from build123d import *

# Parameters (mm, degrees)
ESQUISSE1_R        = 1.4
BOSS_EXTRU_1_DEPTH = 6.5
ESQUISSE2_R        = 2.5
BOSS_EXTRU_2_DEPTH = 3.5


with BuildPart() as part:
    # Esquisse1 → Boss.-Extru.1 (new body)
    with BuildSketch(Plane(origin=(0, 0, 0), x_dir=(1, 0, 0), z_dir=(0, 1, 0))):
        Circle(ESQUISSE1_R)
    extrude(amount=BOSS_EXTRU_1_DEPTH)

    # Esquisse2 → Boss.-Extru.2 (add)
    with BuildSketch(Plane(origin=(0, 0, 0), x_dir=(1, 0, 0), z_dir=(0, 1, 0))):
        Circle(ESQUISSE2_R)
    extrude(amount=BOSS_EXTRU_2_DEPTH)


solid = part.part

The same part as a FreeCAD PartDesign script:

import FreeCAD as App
import Part
import Sketcher

V = App.Vector

doc = App.newDocument("Part")
body = doc.addObject("PartDesign::Body", "Body")

sketch1 = body.newObject("Sketcher::SketchObject", "Sketch")
sketch1.AttachmentSupport = (doc.getObject("XZ_Plane"), [""])
sketch1.MapMode = "FlatFace"
sketch1.addGeometry(Part.Circle(V(0, 0, 0), V(0, 0, 1), 1.4), False)
sketch1.addConstraint([
    Sketcher.Constraint("Coincident", 0, 3, -1, 1),
    Sketcher.Constraint("Diameter", 0, 2.8),
])
pad1 = body.newObject("PartDesign::Pad", "Pad")
pad1.Profile = sketch1
pad1.Length = 6.5
pad1.Reversed = True

sketch2 = body.newObject("Sketcher::SketchObject", "Sketch001")
sketch2.AttachmentSupport = (doc.getObject("XZ_Plane"), [""])
sketch2.MapMode = "FlatFace"
sketch2.addGeometry(Part.Circle(V(0, 0, 0), V(0, 0, 1), 2.5), False)
sketch2.addConstraint([
    Sketcher.Constraint("Coincident", 0, 3, -1, 1),
    Sketcher.Constraint("Diameter", 0, 5.0),
])
pad2 = body.newObject("PartDesign::Pad", "Pad001")
pad2.Profile = sketch2
pad2.Length = 3.5
pad2.Reversed = True

doc.recompute()
